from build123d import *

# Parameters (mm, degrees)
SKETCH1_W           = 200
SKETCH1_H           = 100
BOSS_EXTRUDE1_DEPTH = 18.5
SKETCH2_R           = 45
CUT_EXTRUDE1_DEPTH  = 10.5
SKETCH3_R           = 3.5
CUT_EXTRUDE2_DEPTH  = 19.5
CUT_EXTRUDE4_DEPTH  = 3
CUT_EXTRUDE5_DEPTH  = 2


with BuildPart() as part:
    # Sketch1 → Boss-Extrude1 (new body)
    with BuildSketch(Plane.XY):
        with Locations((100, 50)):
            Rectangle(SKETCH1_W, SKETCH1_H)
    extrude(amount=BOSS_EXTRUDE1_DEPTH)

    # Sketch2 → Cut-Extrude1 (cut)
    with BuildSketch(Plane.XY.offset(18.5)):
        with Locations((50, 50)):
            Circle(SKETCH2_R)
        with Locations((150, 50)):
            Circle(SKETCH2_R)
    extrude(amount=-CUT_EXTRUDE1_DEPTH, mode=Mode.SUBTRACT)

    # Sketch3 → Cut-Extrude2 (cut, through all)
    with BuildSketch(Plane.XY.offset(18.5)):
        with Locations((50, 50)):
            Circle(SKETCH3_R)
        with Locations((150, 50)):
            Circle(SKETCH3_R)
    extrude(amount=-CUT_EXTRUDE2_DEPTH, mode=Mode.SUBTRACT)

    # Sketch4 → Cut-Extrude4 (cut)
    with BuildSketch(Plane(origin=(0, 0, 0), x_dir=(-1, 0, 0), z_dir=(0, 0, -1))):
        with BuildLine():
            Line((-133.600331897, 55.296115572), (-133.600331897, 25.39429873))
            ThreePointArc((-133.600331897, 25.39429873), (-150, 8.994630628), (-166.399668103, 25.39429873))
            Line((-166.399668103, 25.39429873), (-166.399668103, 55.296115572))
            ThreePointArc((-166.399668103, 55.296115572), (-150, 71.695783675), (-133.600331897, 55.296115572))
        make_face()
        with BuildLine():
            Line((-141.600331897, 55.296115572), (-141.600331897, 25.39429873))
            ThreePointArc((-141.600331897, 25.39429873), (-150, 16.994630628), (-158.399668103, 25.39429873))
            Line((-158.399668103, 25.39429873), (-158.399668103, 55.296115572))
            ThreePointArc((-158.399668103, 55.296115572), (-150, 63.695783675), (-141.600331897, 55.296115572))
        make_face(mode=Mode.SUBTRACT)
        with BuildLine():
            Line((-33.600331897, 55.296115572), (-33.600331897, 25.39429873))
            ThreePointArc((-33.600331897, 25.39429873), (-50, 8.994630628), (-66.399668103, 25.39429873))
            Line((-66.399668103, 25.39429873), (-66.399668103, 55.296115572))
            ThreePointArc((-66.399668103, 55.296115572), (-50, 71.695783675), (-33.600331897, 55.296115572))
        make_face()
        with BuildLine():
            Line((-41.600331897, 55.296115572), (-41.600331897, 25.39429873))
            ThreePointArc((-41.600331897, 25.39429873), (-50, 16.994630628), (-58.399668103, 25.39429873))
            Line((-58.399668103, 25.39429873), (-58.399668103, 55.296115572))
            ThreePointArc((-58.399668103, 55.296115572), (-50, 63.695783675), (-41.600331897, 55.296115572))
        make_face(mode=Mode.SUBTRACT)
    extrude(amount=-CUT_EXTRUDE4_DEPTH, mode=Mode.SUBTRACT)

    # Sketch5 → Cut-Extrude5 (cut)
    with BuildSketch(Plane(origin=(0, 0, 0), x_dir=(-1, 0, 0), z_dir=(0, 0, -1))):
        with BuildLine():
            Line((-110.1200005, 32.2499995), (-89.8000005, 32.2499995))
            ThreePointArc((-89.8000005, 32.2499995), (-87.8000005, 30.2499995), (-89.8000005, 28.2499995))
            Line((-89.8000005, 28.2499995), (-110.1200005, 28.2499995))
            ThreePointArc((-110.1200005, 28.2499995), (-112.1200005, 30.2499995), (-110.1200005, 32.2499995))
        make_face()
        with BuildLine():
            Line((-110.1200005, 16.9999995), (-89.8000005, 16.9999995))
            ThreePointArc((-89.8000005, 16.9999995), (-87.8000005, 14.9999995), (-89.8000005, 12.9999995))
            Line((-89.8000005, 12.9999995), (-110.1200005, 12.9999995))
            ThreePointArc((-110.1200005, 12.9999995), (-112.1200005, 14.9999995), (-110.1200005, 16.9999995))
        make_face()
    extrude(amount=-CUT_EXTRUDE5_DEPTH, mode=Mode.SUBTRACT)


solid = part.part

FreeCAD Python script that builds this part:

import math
import FreeCAD as App
import Part
import Sketcher
from FreeCAD import Vector

doc = App.newDocument("Part")
body = doc.addObject("PartDesign::Body", "Body")

# Sketch on XY plane
sketch1 = body.newObject("Sketcher::SketchObject", "Sketch")
sketch1.AttachmentSupport = (doc.getObject("XY_Plane"), [""])
sketch1.MapMode = "FlatFace"
sketch1.addGeometry(Part.LineSegment(Vector(0, 100, 0), Vector(0, 0, 0)), False)
sketch1.addGeometry(Part.LineSegment(Vector(0, 0, 0), Vector(200, 0, 0)), False)
sketch1.addGeometry(Part.LineSegment(Vector(200, 0, 0), Vector(200, 100, 0)), False)
sketch1.addGeometry(Part.LineSegment(Vector(200, 100, 0), Vector(0, 100, 0)), False)
sketch1.addConstraint(Sketcher.Constraint("Coincident", 0, 2, 1, 1))
sketch1.addConstraint(Sketcher.Constraint("Coincident", 1, 2, 2, 1))
sketch1.addConstraint(Sketcher.Constraint("Coincident", 2, 2, 3, 1))
sketch1.addConstraint(Sketcher.Constraint("Coincident", 3, 2, 0, 1))
sketch1.addConstraint(Sketcher.Constraint("Vertical", 0))
sketch1.addConstraint(Sketcher.Constraint("Horizontal", 1))
sketch1.addConstraint(Sketcher.Constraint("Vertical", 2))
sketch1.addConstraint(Sketcher.Constraint("Horizontal", 3))
sketch1.addConstraint(Sketcher.Constraint("Coincident", 0, 2, -1, 1))
sketch1.addConstraint(Sketcher.Constraint("DistanceX", 1, 1, 1, 2, 200.0))
sketch1.addConstraint(Sketcher.Constraint("DistanceY", 0, 2, 0, 1, 100.0))
pad1 = body.newObject("PartDesign::Pad", "Pad")
pad1.Profile = sketch1
pad1.Length = 18.5

# Sketch on XY plane
sketch2 = body.newObject("Sketcher::SketchObject", "Sketch001")
sketch2.AttachmentSupport = (doc.getObject("XY_Plane"), [""])
sketch2.MapMode = "FlatFace"
sketch2.AttachmentOffset = App.Placement(Vector(0, 0, 18.5), App.Rotation())
sketch2.addGeometry(Part.Circle(Vector(50, 50, 0), Vector(0, 0, 1), 45), False)
sketch2.addGeometry(Part.Circle(Vector(150, 50, 0), Vector(0, 0, 1), 45), False)
sketch2.addConstraint(Sketcher.Constraint("Equal", 0, 1))
sketch2.addConstraint(Sketcher.Constraint("Horizontal", 0, 3, 1, 3))
sketch2.addConstraint(Sketcher.Constraint("Diameter", 0, 90.0))
sketch2.addConstraint(Sketcher.Constraint("DistanceX", -1, 1, 0, 3, 50.0))
sketch2.addConstraint(Sketcher.Constraint("DistanceY", -1, 1, 0, 3, 50.0))
sketch2.addConstraint(Sketcher.Constraint("DistanceX", -1, 1, 1, 3, 150.0))
pocket1 = body.newObject("PartDesign::Pocket", "Pocket")
pocket1.Profile = sketch2
pocket1.Length = 10.5

# Sketch on XY plane
sketch3 = body.newObject("Sketcher::SketchObject", "Sketch002")
sketch3.AttachmentSupport = (doc.getObject("XY_Plane"), [""])
sketch3.MapMode = "FlatFace"
sketch3.AttachmentOffset = App.Placement(Vector(0, 0, 18.5), App.Rotation())
sketch3.addGeometry(Part.Circle(Vector(50, 50, 0), Vector(0, 0, 1), 3.5), False)
sketch3.addGeometry(Part.Circle(Vector(150, 50, 0), Vector(0, 0, 1), 3.5), False)
sketch3.addConstraint(Sketcher.Constraint("Equal", 0, 1))
sketch3.addConstraint(Sketcher.Constraint("Horizontal", 0, 3, 1, 3))
sketch3.addConstraint(Sketcher.Constraint("Diameter", 0, 7.0))
sketch3.addConstraint(Sketcher.Constraint("DistanceX", -1, 1, 0, 3, 50.0))
sketch3.addConstraint(Sketcher.Constraint("DistanceY", -1, 1, 0, 3, 50.0))
sketch3.addConstraint(Sketcher.Constraint("DistanceX", -1, 1, 1, 3, 150.0))
pocket2 = body.newObject("PartDesign::Pocket", "Pocket001")
pocket2.Profile = sketch3
pocket2.Type = "ThroughAll"

# Sketch on XY plane
sketch4 = body.newObject("Sketcher::SketchObject", "Sketch003")
sketch4.AttachmentSupport = (doc.getObject("XY_Plane"), [""])
sketch4.MapMode = "FlatFace"
sketch4.addGeometry(Part.LineSegment(Vector(133.600332, 25.394299, 0), Vector(133.600332, 55.296116, 0)), False)
sketch4.addGeometry(Part.ArcOfCircle(Part.Circle(Vector(150, 55.296116, 0), Vector(0, 0, 1), 16.399668), math.radians(0), math.radians(180)), False)
sketch4.addGeometry(Part.LineSegment(Vector(166.399668, 55.296116, 0), Vector(166.399668, 25.394299, 0)), False)
sketch4.addGeometry(Part.ArcOfCircle(Part.Circle(Vector(150, 25.394299, 0), Vector(0, 0, 1), 16.399668), math.radians(-180), math.radians(0)), False)
sketch4.addGeometry(Part.LineSegment(Vector(141.600332, 55.296116, 0), Vector(141.600332, 25.394299, 0)), False)
sketch4.addGeometry(Part.ArcOfCircle(Part.Circle(Vector(150, 25.394299, 0), Vector(0, 0, 1), 8.399668), math.radians(-180), math.radians(0)), False)
sketch4.addGeometry(Part.LineSegment(Vector(158.399668, 25.394299, 0), Vector(158.399668, 55.296116, 0)), False)
sketch4.addGeometry(Part.ArcOfCircle(Part.Circle(Vector(150, 55.296116, 0), Vector(0, 0, 1), 8.399668), math.radians(0), math.radians(180)), False)
sketch4.addGeometry(Part.LineSegment(Vector(33.600332, 25.394299, 0), Vector(33.600332, 55.296116, 0)), False)
sketch4.addGeometry(Part.ArcOfCircle(Part.Circle(Vector(50, 55.296116, 0), Vector(0, 0, 1), 16.399668), math.radians(0), math.radians(180)), False)
sketch4.addGeometry(Part.LineSegment(Vector(66.399668, 55.296116, 0), Vector(66.399668, 25.394299, 0)), False)
sketch4.addGeometry(Part.ArcOfCircle(Part.Circle(Vector(50, 25.394299, 0), Vector(0, 0, 1), 16.399668), math.radians(-180), math.radians(0)), False)
sketch4.addGeometry(Part.LineSegment(Vector(41.600332, 55.296116, 0), Vector(41.600332, 25.394299, 0)), False)
sketch4.addGeometry(Part.ArcOfCircle(Part.Circle(Vector(50, 25.394299, 0), Vector(0, 0, 1), 8.399668), math.radians(-180), math.radians(0)), False)
sketch4.addGeometry(Part.LineSegment(Vector(58.399668, 25.394299, 0), Vector(58.399668, 55.296116, 0)), False)
sketch4.addGeometry(Part.ArcOfCircle(Part.Circle(Vector(50, 55.296116, 0), Vector(0, 0, 1), 8.399668), math.radians(0), math.radians(180)), False)
sketch4.addConstraint(Sketcher.Constraint("Tangent", 0, 2, 1, 2))
sketch4.addConstraint(Sketcher.Constraint("Tangent", 1, 1, 2, 1))
sketch4.addConstraint(Sketcher.Constraint("Tangent", 2, 2, 3, 2))
sketch4.addConstraint(Sketcher.Constraint("Tangent", 3, 1, 0, 1))
sketch4.addConstraint(Sketcher.Constraint("Tangent", 4, 2, 5, 1))
sketch4.addConstraint(Sketcher.Constraint("Tangent", 5, 2, 6, 1))
sketch4.addConstraint(Sketcher.Constraint("Tangent", 6, 2, 7, 1))
sketch4.addConstraint(Sketcher.Constraint("Tangent", 7, 2, 4, 1))
sketch4.addConstraint(Sketcher.Constraint("Tangent", 8, 2, 9, 2))
sketch4.addConstraint(Sketcher.Constraint("Tangent", 9, 1, 10, 1))
sketch4.addConstraint(Sketcher.Constraint("Tangent", 10, 2, 11, 2))
sketch4.addConstraint(Sketcher.Constraint("Tangent", 11, 1, 8, 1))
sketch4.addConstraint(Sketcher.Constraint("Tangent", 12, 2, 13, 1))
sketch4.addConstraint(Sketcher.Constraint("Tangent", 13, 2, 14, 1))
sketch4.addConstraint(Sketcher.Constraint("Tangent", 14, 2, 15, 1))
sketch4.addConstraint(Sketcher.Constraint("Tangent", 15, 2, 12, 1))
sketch4.addConstraint(Sketcher.Constraint("Vertical", 0))
sketch4.addConstraint(Sketcher.Constraint("Vertical", 2))
sketch4.addConstraint(Sketcher.Constraint("Vertical", 4))
sketch4.addConstraint(Sketcher.Constraint("Vertical", 6))
sketch4.addConstraint(Sketcher.Constraint("Vertical", 8))
sketch4.addConstraint(Sketcher.Constraint("Vertical", 10))
sketch4.addConstraint(Sketcher.Constraint("Vertical", 12))
sketch4.addConstraint(Sketcher.Constraint("Vertical", 14))
sketch4.addConstraint(Sketcher.Constraint("Coincident", 5, 3, 3, 3))
sketch4.addConstraint(Sketcher.Constraint("Coincident", 13, 3, 11, 3))
sketch4.addConstraint(Sketcher.Constraint("Equal", 3, 9))
sketch4.addConstraint(Sketcher.Constraint("Equal", 7, 13))
sketch4.addConstraint(Sketcher.Constraint("Horizontal", 7, 3, 9, 3))
sketch4.addConstraint(Sketcher.Constraint("Horizontal", 5, 3, 11, 3))
sketch4.addConstraint(Sketcher.Constraint("Horizontal", 7, 3, 15, 3))
sketch4.addConstraint(Sketcher.Constraint("Horizontal", 15, 3, 0, 2))
sketch4.addConstraint(Sketcher.Constraint("DistanceX", -1, 1, 1, 3, 150.0))
sketch4.addConstraint(Sketcher.Constraint("DistanceX", -1, 1, 9, 3, 50.0))
sketch4.addConstraint(Sketcher.Constraint("DistanceX", 3, 1, 4, 2, 8.0))
sketch4.addConstraint(Sketcher.Constraint("Radius", 1, 16.399668))
sketch4.addConstraint(Sketcher.Constraint("DistanceY", -1, 1, 3, 3, 25.394299))
sketch4.addConstraint(Sketcher.Constraint("DistanceY", 0, 1, 0, 2, 29.901817))
pocket3 = body.newObject("PartDesign::Pocket", "Pocket002")
pocket3.Profile = sketch4
pocket3.Length = 3
pocket3.Reversed = True

# Sketch on XY plane
sketch5 = body.newObject("Sketcher::SketchObject", "Sketch004")
sketch5.AttachmentSupport = (doc.getObject("XY_Plane"), [""])
sketch5.MapMode = "FlatFace"
sketch5.addGeometry(Part.LineSegment(Vector(89.8, 32.25, 0), Vector(110.120001, 32.25, 0)), False)
sketch5.addGeometry(Part.ArcOfCircle(Part.Circle(Vector(110.120001, 30.25, 0), Vector(0, 0, 1), 2), math.radians(-90), math.radians(90)), False)
sketch5.addGeometry(Part.LineSegment(Vector(110.120001, 28.25, 0), Vector(89.8, 28.25, 0)), False)
sketch5.addGeometry(Part.ArcOfCircle(Part.Circle(Vector(89.8, 30.25, 0), Vector(0, 0, 1), 2), math.radians(90), math.radians(270)), False)
sketch5.addGeometry(Part.LineSegment(Vector(89.8, 17, 0), Vector(110.120001, 17, 0)), False)
sketch5.addGeometry(Part.ArcOfCircle(Part.Circle(Vector(110.120001, 14.999999, 0), Vector(0, 0, 1), 2), math.radians(-90), math.radians(90)), False)
sketch5.addGeometry(Part.LineSegment(Vector(110.120001, 12.999999, 0), Vector(89.8, 12.999999, 0)), False)
sketch5.addGeometry(Part.ArcOfCircle(Part.Circle(Vector(89.8, 14.999999, 0), Vector(0, 0, 1), 2), math.radians(90), math.radians(270)), False)
sketch5.addConstraint(Sketcher.Constraint("Tangent", 0, 2, 1, 2))
sketch5.addConstraint(Sketcher.Constraint("Tangent", 1, 1, 2, 1))
sketch5.addConstraint(Sketcher.Constraint("Tangent", 2, 2, 3, 2))
sketch5.addConstraint(Sketcher.Constraint("Tangent", 3, 1, 0, 1))
sketch5.addConstraint(Sketcher.Constraint("Tangent", 4, 2, 5, 2))
sketch5.addConstraint(Sketcher.Constraint("Tangent", 5, 1, 6, 1))
sketch5.addConstraint(Sketcher.Constraint("Tangent", 6, 2, 7, 2))
sketch5.addConstraint(Sketcher.Constraint("Tangent", 7, 1, 4, 1))
sketch5.addConstraint(Sketcher.Constraint("Horizontal", 0))
sketch5.addConstraint(Sketcher.Constraint("Horizontal", 2))
sketch5.addConstraint(Sketcher.Constraint("Horizontal", 4))
sketch5.addConstraint(Sketcher.Constraint("Horizontal", 6))
sketch5.addConstraint(Sketcher.Constraint("Equal", 3, 5))
sketch5.addConstraint(Sketcher.Constraint("Vertical", 1, 3, 5, 3))
sketch5.addConstraint(Sketcher.Constraint("Vertical", 3, 3, 7, 3))
sketch5.addConstraint(Sketcher.Constraint("Radius", 1, 2.0))
sketch5.addConstraint(Sketcher.Constraint("DistanceY", -1, 1, 5, 3, 14.999999))
sketch5.addConstraint(Sketcher.Constraint("DistanceX", 0, 1, 0, 2, 20.32))
sketch5.addConstraint(Sketcher.Constraint("DistanceX", -1, 1, 3, 3, 89.8))
sketch5.addConstraint(Sketcher.Constraint("DistanceY", -1, 1, 1, 3, 30.25))
pocket4 = body.newObject("PartDesign::Pocket", "Pocket003")
pocket4.Profile = sketch5
pocket4.Length = 2
pocket4.Reversed = True

doc.recompute()
